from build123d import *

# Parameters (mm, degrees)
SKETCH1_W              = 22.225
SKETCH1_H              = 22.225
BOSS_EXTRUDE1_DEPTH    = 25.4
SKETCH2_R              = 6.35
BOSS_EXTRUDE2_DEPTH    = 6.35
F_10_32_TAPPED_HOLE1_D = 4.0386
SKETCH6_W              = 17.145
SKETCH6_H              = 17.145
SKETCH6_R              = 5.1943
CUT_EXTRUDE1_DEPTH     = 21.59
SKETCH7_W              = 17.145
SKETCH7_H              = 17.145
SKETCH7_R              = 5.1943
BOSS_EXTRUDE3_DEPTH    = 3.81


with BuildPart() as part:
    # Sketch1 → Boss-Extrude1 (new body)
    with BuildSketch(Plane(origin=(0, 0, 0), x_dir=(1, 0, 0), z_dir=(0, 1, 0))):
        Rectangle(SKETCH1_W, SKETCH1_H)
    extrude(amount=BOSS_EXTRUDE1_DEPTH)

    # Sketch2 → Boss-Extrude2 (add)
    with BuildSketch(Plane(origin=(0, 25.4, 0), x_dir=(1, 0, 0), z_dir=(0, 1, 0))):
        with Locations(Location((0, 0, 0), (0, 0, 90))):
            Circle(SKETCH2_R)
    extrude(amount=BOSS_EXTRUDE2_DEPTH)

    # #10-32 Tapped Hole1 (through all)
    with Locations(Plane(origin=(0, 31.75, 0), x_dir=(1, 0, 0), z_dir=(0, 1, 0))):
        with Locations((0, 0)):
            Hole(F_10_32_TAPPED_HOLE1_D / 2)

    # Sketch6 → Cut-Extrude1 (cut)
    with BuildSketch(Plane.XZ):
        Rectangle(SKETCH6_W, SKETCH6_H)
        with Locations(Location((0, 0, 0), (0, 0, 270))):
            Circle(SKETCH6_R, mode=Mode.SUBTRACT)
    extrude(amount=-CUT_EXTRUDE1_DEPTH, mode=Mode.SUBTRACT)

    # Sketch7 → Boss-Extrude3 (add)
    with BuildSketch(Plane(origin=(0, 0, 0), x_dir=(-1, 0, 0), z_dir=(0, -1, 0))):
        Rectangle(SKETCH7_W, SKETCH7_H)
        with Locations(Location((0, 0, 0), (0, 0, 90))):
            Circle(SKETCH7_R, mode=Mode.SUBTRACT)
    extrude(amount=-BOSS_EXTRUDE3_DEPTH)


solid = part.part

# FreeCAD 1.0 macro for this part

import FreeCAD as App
import Part
import Sketcher
Q = App.Units.Quantity

doc = App.newDocument("Part")
body = doc.addObject("PartDesign::Body", "Body")

sketch1 = body.newObject("Sketcher::SketchObject", "Sketch")
sketch1.AttachmentSupport = (doc.getObject("XZ_Plane"), [""])
sketch1.MapMode = "FlatFace"
sketch1.addGeometry([
    Part.LineSegment(App.Vector(-11.1125, -11.1125, 0), App.Vector(-11.1125, 11.1125, 0)),
    Part.LineSegment(App.Vector(-11.1125, 11.1125, 0), App.Vector(11.1125, 11.1125, 0)),
    Part.LineSegment(App.Vector(11.1125, 11.1125, 0), App.Vector(11.1125, -11.1125, 0)),
    Part.LineSegment(App.Vector(11.1125, -11.1125, 0), App.Vector(-11.1125, -11.1125, 0)),
], False)
sketch1.addConstraint([
    Sketcher.Constraint("Coincident", 0, 2, 1, 1),
    Sketcher.Constraint("Coincident", 1, 2, 2, 1),
    Sketcher.Constraint("Coincident", 2, 2, 3, 1),
    Sketcher.Constraint("Coincident", 3, 2, 0, 1),
    Sketcher.Constraint("Vertical", 0),
    Sketcher.Constraint("Horizontal", 1),
    Sketcher.Constraint("Vertical", 2),
    Sketcher.Constraint("Horizontal", 3),
    Sketcher.Constraint("Symmetric", 0, 2, 2, 2, -1, 1),
    Sketcher.Constraint("Equal", 3, 0),
    Sketcher.Constraint("DistanceX", 1, 1, 1, 2, Q("0.875 in")),
])
pad1 = body.newObject("PartDesign::Pad", "Pad")
pad1.Profile = sketch1
pad1.Length = Q("1 in")
pad1.Reversed = True

sketch2 = body.newObject("Sketcher::SketchObject", "Sketch001")
sketch2.AttachmentSupport = (doc.getObject("XZ_Plane"), [""])
sketch2.MapMode = "FlatFace"
sketch2.AttachmentOffset = App.Placement(App.Vector(0, 0, -1 * 25.4), App.Rotation())
sketch2.addGeometry(Part.Circle(App.Vector(0, 0, 0), App.Vector(0, 0, 1), 6.35), False)
sketch2.addConstraint([
    Sketcher.Constraint("Coincident", 0, 3, -1, 1),
    Sketcher.Constraint("Diameter", 0, Q("0.5 in")),
])
pad2 = body.newObject("PartDesign::Pad", "Pad001")
pad2.Profile = sketch2
pad2.Length = Q("0.25 in")
pad2.Reversed = True

sketch3 = body.newObject("Sketcher::SketchObject", "Sketch002")
sketch3.AttachmentSupport = (doc.getObject("XZ_Plane"), [""])
sketch3.MapMode = "FlatFace"
sketch3.AttachmentOffset = App.Placement(App.Vector(0, 0, -1.25 * 25.4), App.Rotation())
sketch3.addGeometry(Part.Circle(App.Vector(0, 0, 0), App.Vector(0, 0, 1), 2.0193), False)
sketch3.addConstraint([
    Sketcher.Constraint("Coincident", 0, 3, -1, 1),
    Sketcher.Constraint("Diameter", 0, Q("0.159 in")),
])
doc.recompute()
hole = body.newObject("PartDesign::Hole", "Hole")
hole.Profile = sketch3
hole.ThreadType = "None"
hole.Diameter = Q("0.159 in")
hole.DepthType = "ThroughAll"
hole.Reversed = True

sketch4 = body.newObject("Sketcher::SketchObject", "Sketch003")
sketch4.AttachmentSupport = (doc.getObject("XZ_Plane"), [""])
sketch4.MapMode = "FlatFace"
sketch4.addGeometry([
    Part.LineSegment(App.Vector(-8.5725, 8.5725, 0), App.Vector(-8.5725, -8.5725, 0)),
    Part.LineSegment(App.Vector(-8.5725, -8.5725, 0), App.Vector(8.5725, -8.5725, 0)),
    Part.LineSegment(App.Vector(8.5725, -8.5725, 0), App.Vector(8.5725, 8.5725, 0)),
    Part.LineSegment(App.Vector(8.5725, 8.5725, 0), App.Vector(-8.5725, 8.5725, 0)),
    Part.Circle(App.Vector(0, 0, 0), App.Vector(0, 0, 1), 5.1943),
], False)
sketch4.addConstraint([
    Sketcher.Constraint("Coincident", 0, 2, 1, 1),
    Sketcher.Constraint("Coincident", 1, 2, 2, 1),
    Sketcher.Constraint("Coincident", 2, 2, 3, 1),
    Sketcher.Constraint("Coincident", 3, 2, 0, 1),
    Sketcher.Constraint("Vertical", 0),
    Sketcher.Constraint("Horizontal", 1),
    Sketcher.Constraint("Vertical", 2),
    Sketcher.Constraint("Horizontal", 3),
    Sketcher.Constraint("Coincident", 4, 3, -1, 1),
    Sketcher.Constraint("Symmetric", 0, 2, 2, 2, -1, 1),
    Sketcher.Constraint("Equal", 3, 0),
    Sketcher.Constraint("Diameter", 4, Q("0.409 in")),
    Sketcher.Constraint("DistanceX", 1, 1, 1, 2, Q("0.675 in")),
])
pocket1 = body.newObject("PartDesign::Pocket", "Pocket")
pocket1.Profile = sketch4
pocket1.Length = Q("0.85 in")

sketch5 = body.newObject("Sketcher::SketchObject", "Sketch004")
sketch5.AttachmentSupport = (doc.getObject("XZ_Plane"), [""])
sketch5.MapMode = "FlatFace"
sketch5.addGeometry([
    Part.LineSegment(App.Vector(8.5725, -8.5725, 0), App.Vector(8.5725, 8.5725, 0)),
    Part.LineSegment(App.Vector(8.5725, 8.5725, 0), App.Vector(-8.5725, 8.5725, 0)),
    Part.LineSegment(App.Vector(-8.5725, 8.5725, 0), App.Vector(-8.5725, -8.5725, 0)),
    Part.LineSegment(App.Vector(-8.5725, -8.5725, 0), App.Vector(8.5725, -8.5725, 0)),
    Part.Circle(App.Vector(0, 0, 0), App.Vector(0, 0, 1), 5.1943),
], False)
sketch5.addConstraint([
    Sketcher.Constraint("Coincident", 0, 2, 1, 1),
    Sketcher.Constraint("Coincident", 1, 2, 2, 1),
    Sketcher.Constraint("Coincident", 2, 2, 3, 1),
    Sketcher.Constraint("Coincident", 3, 2, 0, 1),
    Sketcher.Constraint("Vertical", 0),
    Sketcher.Constraint("Horizontal", 1),
    Sketcher.Constraint("Vertical", 2),
    Sketcher.Constraint("Horizontal", 3),
    Sketcher.Constraint("Coincident", 4, 3, -1, 1),
    Sketcher.Constraint("Symmetric", 0, 2, 2, 2, -1, 1),
    Sketcher.Constraint("Equal", 3, 0),
    Sketcher.Constraint("Diameter", 4, Q("0.409 in")),
    Sketcher.Constraint("DistanceX", 1, 2, 1, 1, Q("0.675 in")),
])
pad3 = body.newObject("PartDesign::Pad", "Pad002")
pad3.Profile = sketch5
pad3.Length = Q("0.15 in")
pad3.Reversed = True

doc.recompute()
